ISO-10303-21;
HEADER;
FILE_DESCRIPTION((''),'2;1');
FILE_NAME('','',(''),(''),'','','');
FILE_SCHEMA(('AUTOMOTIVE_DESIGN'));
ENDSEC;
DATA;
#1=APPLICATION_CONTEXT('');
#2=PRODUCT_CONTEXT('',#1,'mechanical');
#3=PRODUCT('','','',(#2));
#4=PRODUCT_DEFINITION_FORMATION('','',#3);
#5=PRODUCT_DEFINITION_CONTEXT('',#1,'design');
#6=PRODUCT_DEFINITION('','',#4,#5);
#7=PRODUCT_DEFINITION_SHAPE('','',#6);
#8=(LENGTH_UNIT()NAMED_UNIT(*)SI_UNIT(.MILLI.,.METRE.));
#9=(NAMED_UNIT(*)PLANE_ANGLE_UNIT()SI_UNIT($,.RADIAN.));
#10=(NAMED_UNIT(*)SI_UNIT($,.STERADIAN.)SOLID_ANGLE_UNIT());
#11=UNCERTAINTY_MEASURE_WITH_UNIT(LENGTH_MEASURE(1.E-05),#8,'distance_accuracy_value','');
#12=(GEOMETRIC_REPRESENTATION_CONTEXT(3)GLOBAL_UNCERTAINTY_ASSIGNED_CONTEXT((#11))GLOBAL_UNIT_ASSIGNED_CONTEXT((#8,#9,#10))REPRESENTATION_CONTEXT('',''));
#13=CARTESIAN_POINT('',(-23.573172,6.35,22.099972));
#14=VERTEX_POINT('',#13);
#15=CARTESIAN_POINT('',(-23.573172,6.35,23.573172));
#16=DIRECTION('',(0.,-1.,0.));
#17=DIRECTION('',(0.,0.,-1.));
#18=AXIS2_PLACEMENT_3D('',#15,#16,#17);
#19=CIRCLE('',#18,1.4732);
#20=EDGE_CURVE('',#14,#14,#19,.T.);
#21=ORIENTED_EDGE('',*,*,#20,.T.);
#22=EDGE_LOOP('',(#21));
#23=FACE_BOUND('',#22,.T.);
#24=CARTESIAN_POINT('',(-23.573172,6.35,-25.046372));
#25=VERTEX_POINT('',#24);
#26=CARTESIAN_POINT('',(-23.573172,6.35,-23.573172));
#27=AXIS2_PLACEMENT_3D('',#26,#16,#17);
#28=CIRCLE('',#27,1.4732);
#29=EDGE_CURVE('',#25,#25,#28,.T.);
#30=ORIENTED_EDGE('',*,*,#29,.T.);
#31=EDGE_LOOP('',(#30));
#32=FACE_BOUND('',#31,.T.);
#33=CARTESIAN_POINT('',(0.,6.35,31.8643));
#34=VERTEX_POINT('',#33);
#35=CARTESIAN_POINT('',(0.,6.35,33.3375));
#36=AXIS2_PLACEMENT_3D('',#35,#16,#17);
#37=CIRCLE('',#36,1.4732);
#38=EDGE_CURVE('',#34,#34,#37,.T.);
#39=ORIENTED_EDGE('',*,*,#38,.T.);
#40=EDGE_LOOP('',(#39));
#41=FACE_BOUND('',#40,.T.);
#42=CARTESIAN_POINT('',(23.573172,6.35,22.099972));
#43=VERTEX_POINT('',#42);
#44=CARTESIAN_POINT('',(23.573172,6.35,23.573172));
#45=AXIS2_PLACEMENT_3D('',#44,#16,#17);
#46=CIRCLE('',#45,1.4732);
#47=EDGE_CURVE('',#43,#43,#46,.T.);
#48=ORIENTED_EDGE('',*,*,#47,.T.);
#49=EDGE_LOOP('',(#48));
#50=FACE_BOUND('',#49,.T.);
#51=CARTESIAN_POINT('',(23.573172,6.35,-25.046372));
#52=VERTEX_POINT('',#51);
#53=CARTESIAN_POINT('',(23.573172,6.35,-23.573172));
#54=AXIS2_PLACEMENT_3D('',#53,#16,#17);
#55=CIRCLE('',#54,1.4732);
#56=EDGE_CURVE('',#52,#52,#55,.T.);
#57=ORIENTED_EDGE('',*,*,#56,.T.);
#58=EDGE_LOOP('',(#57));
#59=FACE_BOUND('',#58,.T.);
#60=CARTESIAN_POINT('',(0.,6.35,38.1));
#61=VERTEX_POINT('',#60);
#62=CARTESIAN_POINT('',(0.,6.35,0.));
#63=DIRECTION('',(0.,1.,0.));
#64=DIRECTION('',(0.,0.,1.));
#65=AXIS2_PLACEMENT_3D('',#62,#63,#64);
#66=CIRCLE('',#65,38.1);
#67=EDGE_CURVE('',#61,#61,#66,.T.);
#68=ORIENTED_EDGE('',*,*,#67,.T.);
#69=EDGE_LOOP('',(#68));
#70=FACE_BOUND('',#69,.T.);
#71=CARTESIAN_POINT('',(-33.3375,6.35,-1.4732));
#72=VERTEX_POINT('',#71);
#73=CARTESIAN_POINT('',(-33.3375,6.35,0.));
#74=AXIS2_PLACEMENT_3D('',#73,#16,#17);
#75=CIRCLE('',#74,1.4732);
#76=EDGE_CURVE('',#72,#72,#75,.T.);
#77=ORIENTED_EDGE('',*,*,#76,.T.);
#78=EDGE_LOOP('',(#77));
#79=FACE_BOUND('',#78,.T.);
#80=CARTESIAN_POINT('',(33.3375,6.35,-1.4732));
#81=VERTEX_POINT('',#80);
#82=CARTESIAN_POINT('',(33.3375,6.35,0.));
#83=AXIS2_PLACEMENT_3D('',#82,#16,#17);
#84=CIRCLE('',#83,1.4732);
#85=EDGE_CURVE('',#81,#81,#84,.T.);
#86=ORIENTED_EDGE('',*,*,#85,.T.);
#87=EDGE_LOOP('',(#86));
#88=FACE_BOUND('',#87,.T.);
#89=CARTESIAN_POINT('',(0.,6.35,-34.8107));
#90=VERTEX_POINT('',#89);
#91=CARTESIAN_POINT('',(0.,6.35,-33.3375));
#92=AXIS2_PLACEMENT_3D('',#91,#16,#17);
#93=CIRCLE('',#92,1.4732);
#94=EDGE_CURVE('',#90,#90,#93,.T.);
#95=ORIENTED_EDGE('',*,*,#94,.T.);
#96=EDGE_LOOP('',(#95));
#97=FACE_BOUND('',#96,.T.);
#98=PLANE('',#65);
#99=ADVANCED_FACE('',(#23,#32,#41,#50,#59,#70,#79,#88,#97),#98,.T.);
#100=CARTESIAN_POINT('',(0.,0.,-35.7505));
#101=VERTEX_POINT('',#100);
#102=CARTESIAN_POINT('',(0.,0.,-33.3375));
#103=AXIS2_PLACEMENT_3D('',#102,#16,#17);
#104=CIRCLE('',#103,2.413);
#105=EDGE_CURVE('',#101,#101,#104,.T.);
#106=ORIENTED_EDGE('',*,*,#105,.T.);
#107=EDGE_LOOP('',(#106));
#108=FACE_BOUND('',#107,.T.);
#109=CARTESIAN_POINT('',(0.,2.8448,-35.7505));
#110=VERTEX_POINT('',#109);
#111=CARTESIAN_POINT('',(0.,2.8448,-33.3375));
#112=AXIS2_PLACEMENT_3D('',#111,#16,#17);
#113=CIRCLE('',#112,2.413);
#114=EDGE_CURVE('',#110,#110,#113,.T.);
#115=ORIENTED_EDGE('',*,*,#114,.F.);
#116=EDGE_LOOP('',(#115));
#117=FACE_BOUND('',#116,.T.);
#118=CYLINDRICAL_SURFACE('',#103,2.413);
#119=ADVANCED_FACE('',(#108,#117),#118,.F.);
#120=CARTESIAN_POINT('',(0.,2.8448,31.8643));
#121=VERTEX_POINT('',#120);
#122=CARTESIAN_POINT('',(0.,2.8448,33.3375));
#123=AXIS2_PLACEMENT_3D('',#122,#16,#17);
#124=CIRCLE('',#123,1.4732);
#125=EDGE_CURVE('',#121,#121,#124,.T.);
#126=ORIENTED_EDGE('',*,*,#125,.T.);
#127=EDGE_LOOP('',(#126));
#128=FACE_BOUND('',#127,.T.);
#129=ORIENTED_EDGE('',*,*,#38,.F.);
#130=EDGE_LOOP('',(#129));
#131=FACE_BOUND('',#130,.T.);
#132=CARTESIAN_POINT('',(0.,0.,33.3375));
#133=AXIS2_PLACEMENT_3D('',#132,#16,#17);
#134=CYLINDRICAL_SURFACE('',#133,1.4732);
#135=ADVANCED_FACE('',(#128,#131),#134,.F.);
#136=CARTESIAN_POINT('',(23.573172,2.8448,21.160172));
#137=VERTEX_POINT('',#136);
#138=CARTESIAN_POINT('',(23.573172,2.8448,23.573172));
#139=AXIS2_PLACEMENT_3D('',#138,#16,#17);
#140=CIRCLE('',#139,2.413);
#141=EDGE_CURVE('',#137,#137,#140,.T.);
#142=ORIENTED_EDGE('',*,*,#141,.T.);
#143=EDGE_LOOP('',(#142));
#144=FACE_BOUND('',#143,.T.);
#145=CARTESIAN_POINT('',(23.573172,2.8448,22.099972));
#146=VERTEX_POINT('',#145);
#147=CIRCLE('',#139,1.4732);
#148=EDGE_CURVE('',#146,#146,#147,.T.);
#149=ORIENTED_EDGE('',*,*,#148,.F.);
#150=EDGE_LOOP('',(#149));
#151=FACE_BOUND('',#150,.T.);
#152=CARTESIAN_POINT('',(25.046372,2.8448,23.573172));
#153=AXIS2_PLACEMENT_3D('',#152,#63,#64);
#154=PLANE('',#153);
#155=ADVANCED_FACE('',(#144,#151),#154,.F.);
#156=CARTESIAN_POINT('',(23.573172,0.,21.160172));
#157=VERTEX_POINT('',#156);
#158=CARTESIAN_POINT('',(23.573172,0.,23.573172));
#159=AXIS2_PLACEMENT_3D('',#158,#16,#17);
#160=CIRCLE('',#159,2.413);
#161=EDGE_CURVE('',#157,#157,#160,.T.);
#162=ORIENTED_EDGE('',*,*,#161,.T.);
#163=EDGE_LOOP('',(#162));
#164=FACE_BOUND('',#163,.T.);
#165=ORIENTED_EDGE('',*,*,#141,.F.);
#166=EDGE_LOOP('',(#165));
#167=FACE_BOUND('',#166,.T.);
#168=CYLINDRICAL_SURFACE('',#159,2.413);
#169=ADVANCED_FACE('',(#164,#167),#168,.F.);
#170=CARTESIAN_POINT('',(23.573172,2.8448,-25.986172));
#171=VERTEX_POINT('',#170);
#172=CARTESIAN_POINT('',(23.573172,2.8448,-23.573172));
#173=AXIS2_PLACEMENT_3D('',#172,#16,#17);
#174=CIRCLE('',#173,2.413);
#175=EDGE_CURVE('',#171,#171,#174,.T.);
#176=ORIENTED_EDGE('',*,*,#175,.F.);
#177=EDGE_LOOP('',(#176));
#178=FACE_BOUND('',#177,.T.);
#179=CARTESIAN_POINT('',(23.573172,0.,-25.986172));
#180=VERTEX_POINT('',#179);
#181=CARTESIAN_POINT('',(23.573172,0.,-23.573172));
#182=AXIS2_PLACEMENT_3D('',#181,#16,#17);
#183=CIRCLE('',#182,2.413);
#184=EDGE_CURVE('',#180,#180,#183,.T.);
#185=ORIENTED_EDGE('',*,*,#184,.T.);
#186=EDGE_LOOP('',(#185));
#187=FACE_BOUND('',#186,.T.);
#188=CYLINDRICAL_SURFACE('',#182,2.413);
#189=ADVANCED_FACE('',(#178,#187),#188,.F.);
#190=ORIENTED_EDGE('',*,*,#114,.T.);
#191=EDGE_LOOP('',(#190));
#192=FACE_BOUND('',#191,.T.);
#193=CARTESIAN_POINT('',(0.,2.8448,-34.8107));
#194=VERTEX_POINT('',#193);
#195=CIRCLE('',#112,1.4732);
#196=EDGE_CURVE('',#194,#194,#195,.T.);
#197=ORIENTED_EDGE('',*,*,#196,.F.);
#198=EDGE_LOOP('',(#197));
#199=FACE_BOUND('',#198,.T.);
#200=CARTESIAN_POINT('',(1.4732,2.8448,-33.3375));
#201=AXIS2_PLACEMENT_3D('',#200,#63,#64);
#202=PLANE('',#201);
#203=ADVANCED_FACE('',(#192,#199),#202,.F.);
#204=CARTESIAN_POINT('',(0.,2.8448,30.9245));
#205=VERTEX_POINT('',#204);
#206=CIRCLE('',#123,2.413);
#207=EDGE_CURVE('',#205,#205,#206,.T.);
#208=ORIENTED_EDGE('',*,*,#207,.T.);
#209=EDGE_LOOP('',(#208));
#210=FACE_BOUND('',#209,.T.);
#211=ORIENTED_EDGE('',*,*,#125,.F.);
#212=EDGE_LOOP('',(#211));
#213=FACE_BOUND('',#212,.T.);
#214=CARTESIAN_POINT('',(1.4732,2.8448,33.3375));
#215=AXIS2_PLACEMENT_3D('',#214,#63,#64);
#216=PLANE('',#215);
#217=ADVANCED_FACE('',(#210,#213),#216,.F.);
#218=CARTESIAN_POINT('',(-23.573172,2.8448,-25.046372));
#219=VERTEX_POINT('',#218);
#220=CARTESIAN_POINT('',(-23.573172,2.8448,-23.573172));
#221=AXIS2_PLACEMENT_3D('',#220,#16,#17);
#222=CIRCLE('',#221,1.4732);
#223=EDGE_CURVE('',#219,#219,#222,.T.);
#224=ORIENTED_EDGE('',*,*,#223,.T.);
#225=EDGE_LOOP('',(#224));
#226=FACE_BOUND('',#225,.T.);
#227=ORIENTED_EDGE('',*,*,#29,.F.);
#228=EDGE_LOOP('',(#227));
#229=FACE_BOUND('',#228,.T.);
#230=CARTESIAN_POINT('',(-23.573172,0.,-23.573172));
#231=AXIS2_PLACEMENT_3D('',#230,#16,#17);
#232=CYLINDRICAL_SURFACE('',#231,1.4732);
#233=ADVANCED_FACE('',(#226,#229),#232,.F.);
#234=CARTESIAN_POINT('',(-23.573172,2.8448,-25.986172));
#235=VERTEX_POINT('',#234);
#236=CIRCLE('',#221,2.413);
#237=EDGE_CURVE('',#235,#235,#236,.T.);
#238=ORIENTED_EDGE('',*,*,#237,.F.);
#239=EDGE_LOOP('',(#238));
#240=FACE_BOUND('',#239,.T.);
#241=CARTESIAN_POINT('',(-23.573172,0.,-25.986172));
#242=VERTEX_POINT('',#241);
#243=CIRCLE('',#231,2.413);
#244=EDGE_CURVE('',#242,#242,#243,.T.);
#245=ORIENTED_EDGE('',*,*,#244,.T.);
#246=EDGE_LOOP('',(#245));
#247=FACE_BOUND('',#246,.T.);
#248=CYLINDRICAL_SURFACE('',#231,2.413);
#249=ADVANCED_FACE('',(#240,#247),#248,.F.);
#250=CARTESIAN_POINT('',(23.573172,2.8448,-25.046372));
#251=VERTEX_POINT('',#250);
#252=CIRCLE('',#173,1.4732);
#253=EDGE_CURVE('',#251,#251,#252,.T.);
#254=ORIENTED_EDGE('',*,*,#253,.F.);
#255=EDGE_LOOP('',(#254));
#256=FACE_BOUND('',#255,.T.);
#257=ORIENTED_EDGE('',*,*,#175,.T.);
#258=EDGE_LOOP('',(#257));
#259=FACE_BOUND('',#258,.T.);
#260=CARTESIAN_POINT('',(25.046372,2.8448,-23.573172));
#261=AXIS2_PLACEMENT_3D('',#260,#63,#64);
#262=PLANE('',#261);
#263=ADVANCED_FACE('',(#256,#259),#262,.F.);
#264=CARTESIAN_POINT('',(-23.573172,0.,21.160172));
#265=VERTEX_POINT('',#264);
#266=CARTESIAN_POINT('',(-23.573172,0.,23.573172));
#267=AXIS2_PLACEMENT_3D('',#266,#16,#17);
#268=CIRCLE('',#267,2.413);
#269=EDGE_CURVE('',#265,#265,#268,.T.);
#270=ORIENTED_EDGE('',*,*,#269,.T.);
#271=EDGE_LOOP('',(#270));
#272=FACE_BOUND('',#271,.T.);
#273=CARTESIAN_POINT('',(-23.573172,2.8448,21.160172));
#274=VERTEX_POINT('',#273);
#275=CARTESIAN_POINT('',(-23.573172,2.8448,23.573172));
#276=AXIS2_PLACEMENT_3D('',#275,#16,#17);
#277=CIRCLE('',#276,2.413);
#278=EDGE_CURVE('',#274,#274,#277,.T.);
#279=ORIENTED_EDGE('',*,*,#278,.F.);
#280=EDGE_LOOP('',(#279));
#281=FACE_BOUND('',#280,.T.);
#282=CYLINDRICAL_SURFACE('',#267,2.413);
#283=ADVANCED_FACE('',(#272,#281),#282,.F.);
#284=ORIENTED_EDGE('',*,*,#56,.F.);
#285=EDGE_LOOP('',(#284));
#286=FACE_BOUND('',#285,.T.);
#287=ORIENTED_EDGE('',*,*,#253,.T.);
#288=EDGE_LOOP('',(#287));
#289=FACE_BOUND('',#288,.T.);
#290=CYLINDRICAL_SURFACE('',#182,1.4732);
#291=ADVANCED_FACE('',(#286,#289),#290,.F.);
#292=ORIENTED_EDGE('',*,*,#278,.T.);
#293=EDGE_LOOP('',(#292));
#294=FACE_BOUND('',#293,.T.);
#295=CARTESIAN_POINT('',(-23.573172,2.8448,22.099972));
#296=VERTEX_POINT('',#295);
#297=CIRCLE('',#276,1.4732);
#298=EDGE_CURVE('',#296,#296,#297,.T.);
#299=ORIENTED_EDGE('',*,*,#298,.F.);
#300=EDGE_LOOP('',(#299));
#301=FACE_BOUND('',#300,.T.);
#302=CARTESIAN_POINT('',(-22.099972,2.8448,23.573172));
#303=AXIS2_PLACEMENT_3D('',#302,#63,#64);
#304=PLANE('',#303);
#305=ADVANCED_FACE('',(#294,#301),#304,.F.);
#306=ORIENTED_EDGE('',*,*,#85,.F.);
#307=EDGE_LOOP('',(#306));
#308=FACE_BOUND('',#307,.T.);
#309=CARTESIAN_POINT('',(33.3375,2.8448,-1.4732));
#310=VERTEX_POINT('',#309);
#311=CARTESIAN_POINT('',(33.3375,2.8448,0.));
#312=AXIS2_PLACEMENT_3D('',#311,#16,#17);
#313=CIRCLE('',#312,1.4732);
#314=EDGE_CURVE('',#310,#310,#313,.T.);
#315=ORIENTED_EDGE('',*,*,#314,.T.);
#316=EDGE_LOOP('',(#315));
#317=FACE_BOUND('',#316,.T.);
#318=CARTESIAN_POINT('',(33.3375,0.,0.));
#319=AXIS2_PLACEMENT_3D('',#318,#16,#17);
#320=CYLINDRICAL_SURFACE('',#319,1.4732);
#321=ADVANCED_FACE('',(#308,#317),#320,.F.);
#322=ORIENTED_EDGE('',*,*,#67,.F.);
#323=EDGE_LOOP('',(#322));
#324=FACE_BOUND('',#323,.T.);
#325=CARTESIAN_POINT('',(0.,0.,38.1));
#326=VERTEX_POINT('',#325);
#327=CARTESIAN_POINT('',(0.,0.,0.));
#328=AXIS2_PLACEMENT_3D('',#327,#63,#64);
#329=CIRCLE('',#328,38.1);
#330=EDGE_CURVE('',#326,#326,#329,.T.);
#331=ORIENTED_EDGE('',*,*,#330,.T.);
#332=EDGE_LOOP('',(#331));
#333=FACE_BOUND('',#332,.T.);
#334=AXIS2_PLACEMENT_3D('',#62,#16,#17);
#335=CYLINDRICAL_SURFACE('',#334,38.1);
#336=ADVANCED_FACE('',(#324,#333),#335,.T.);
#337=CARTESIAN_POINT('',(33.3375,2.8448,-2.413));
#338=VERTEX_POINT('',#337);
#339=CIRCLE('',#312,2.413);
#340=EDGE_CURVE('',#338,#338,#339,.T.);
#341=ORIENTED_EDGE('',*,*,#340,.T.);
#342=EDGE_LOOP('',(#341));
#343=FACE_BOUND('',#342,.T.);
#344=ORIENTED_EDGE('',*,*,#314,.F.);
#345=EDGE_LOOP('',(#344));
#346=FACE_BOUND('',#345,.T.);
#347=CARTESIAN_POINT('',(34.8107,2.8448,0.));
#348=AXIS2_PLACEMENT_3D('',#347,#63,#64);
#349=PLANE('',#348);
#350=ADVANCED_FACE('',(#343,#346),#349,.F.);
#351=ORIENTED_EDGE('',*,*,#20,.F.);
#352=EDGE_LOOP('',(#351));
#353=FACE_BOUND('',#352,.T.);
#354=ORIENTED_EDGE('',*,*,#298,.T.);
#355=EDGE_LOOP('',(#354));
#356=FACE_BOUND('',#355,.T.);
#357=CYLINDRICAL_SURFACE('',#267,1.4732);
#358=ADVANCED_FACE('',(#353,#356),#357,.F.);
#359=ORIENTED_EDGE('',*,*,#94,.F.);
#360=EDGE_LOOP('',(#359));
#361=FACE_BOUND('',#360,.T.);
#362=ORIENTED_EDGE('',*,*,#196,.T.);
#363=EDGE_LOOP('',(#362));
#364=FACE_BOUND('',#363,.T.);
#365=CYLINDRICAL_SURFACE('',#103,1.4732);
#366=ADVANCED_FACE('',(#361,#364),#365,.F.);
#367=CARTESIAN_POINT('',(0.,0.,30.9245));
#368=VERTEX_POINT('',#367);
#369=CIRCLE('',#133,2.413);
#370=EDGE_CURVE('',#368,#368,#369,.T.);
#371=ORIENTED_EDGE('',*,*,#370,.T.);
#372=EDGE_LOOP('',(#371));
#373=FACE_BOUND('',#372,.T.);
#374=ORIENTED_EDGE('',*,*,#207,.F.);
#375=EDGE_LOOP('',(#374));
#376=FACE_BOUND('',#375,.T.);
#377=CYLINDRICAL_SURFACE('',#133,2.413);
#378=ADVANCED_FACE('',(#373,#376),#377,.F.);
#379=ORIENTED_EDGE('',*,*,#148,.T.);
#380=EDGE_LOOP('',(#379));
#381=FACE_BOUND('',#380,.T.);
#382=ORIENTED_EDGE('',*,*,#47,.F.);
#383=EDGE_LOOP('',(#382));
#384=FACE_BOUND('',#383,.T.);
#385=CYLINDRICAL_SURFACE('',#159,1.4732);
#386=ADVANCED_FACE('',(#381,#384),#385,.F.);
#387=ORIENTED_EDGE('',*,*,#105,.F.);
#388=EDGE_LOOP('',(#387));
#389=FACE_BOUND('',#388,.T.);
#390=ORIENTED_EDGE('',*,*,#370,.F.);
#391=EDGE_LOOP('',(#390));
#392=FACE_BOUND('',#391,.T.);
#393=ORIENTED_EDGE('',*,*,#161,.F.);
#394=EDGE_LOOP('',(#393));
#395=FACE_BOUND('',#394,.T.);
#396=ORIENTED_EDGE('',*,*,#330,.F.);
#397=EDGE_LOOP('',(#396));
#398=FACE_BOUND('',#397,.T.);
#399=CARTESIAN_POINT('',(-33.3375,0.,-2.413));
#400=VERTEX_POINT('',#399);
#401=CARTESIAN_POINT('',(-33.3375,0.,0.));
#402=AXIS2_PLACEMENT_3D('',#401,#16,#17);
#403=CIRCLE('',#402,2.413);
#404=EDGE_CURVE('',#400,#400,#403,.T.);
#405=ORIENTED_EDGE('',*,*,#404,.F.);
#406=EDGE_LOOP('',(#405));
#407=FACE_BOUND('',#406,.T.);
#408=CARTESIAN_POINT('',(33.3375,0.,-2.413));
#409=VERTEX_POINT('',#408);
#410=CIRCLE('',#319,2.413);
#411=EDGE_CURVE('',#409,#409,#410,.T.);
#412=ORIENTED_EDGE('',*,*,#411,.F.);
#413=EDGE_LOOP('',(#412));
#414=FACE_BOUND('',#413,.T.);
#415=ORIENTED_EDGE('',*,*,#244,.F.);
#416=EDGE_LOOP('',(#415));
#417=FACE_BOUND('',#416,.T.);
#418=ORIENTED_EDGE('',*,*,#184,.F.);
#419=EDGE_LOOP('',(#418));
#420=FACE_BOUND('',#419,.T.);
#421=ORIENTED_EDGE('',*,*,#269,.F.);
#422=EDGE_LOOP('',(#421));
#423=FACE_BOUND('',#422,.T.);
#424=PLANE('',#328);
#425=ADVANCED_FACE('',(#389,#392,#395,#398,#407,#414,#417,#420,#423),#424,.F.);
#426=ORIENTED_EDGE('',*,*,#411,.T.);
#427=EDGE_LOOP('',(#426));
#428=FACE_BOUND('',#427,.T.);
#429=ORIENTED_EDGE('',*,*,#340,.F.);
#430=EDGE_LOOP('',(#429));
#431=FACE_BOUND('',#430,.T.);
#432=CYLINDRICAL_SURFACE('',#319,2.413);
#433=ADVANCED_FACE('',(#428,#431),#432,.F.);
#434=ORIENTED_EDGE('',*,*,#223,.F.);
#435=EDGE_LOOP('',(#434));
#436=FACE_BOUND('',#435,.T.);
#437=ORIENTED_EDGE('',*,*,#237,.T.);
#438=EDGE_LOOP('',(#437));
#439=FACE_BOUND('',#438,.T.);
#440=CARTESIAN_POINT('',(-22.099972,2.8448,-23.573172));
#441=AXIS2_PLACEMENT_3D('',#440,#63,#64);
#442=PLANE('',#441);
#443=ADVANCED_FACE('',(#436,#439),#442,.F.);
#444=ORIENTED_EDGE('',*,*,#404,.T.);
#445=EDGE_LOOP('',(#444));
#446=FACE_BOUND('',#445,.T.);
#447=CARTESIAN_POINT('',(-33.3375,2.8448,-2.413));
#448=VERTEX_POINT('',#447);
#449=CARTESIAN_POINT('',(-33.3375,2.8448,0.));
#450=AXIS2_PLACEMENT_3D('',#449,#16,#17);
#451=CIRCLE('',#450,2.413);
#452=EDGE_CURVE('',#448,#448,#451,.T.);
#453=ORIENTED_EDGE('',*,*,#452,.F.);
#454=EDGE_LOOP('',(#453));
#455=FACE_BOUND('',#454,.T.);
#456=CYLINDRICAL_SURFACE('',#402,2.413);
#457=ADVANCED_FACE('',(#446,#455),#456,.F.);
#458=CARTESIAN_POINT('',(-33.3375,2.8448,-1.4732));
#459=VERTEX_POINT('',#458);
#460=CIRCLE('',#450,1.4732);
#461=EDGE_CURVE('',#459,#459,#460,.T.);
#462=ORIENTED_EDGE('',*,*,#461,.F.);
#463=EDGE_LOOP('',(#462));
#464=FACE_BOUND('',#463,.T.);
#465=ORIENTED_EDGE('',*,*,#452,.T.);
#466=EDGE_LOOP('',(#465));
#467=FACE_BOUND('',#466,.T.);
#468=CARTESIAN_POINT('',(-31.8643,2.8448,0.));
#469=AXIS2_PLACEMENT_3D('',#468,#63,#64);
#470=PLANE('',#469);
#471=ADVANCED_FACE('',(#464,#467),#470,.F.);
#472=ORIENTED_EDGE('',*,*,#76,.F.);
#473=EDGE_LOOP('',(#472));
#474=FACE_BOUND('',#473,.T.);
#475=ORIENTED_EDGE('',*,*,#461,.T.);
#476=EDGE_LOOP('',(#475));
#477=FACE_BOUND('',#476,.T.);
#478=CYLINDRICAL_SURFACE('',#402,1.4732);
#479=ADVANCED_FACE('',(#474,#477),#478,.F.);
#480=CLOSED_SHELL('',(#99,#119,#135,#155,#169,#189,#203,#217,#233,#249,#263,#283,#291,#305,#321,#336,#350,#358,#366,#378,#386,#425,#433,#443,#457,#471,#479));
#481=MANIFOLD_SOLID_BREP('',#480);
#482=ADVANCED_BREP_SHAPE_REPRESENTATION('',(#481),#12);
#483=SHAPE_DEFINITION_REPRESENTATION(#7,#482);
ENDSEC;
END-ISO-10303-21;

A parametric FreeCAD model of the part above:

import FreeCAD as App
import Part
import Sketcher
from FreeCAD import Vector
Q = App.Units.Quantity

doc = App.newDocument("Part")
params = doc.addObject("Spreadsheet::Sheet", "Params")
for row, (alias, value) in enumerate([
    ("sketch1_diameter", "3 in"),
    ("pad1_length", "0.25 in"),
    ("sketch2_diameter", "0.116 in"),
    ("hole_diameter", "0.116 in"),
    ("hole_cbore_diameter", "0.19 in"),
    ("hole_cbore_depth", "0.112 in"),
], start=1):
    params.set(f"A{row}", alias)
    params.set(f"B{row}", "=" + value)
    params.setAlias(f"B{row}", alias)

body = doc.addObject("PartDesign::Body", "Body")

# Sketch on XZ plane
sketch1 = body.newObject("Sketcher::SketchObject", "Sketch")
sketch1.AttachmentSupport = (doc.getObject("XZ_Plane"), [""])
sketch1.MapMode = "FlatFace"
sketch1.addGeometry(Part.Circle(Vector(0, 0, 0), Vector(0, 0, 1), 38.1), False)
sketch1.addConstraint([
    Sketcher.Constraint("Coincident", 0, 3, -1, 1),
    Sketcher.Constraint("Diameter", 0, Q("3 in")),
])
sketch1.setExpression("Constraints[1]", "Params.sketch1_diameter")
pad1 = body.newObject("PartDesign::Pad", "Pad")
pad1.Profile = sketch1
pad1.setExpression("Length", "Params.pad1_length")
pad1.Reversed = True

# Sketch on XZ plane
sketch2 = body.newObject("Sketcher::SketchObject", "Sketch001")
sketch2.AttachmentSupport = (doc.getObject("XZ_Plane"), [""])
sketch2.MapMode = "FlatFace"
sketch2.addGeometry(Part.Circle(Vector(0, 33.3375, 0), Vector(0, 0, 1), 1.4732), False)
sketch2.addConstraint([
    Sketcher.Constraint("PointOnObject", 0, 3, -2),
    Sketcher.Constraint("Diameter", 0, Q("0.116 in")),
    Sketcher.Constraint("DistanceY", -1, 1, 0, 3, Q("1.3125 in")),
])
sketch2.setExpression("Constraints[1]", "Params.sketch2_diameter")
doc.recompute()
hole = body.newObject("PartDesign::Hole", "Hole")
hole.Profile = sketch2
hole.ThreadType = "None"
hole.setExpression("Diameter", "Params.hole_diameter")
hole.DepthType = "ThroughAll"
hole.HoleCutType = "Counterbore"
hole.setExpression("HoleCutDiameter", "Params.hole_cbore_diameter")
hole.setExpression("HoleCutDepth", "Params.hole_cbore_depth")
doc.recompute()

polarpattern = body.newObject("PartDesign::PolarPattern", "PolarPattern")
polarpattern.Originals = [hole]
polarpattern.Axis = (doc.getObject("Y_Axis"), [""])
polarpattern.Angle = 360
polarpattern.Occurrences = 8
body.Tip = polarpattern

doc.recompute()
